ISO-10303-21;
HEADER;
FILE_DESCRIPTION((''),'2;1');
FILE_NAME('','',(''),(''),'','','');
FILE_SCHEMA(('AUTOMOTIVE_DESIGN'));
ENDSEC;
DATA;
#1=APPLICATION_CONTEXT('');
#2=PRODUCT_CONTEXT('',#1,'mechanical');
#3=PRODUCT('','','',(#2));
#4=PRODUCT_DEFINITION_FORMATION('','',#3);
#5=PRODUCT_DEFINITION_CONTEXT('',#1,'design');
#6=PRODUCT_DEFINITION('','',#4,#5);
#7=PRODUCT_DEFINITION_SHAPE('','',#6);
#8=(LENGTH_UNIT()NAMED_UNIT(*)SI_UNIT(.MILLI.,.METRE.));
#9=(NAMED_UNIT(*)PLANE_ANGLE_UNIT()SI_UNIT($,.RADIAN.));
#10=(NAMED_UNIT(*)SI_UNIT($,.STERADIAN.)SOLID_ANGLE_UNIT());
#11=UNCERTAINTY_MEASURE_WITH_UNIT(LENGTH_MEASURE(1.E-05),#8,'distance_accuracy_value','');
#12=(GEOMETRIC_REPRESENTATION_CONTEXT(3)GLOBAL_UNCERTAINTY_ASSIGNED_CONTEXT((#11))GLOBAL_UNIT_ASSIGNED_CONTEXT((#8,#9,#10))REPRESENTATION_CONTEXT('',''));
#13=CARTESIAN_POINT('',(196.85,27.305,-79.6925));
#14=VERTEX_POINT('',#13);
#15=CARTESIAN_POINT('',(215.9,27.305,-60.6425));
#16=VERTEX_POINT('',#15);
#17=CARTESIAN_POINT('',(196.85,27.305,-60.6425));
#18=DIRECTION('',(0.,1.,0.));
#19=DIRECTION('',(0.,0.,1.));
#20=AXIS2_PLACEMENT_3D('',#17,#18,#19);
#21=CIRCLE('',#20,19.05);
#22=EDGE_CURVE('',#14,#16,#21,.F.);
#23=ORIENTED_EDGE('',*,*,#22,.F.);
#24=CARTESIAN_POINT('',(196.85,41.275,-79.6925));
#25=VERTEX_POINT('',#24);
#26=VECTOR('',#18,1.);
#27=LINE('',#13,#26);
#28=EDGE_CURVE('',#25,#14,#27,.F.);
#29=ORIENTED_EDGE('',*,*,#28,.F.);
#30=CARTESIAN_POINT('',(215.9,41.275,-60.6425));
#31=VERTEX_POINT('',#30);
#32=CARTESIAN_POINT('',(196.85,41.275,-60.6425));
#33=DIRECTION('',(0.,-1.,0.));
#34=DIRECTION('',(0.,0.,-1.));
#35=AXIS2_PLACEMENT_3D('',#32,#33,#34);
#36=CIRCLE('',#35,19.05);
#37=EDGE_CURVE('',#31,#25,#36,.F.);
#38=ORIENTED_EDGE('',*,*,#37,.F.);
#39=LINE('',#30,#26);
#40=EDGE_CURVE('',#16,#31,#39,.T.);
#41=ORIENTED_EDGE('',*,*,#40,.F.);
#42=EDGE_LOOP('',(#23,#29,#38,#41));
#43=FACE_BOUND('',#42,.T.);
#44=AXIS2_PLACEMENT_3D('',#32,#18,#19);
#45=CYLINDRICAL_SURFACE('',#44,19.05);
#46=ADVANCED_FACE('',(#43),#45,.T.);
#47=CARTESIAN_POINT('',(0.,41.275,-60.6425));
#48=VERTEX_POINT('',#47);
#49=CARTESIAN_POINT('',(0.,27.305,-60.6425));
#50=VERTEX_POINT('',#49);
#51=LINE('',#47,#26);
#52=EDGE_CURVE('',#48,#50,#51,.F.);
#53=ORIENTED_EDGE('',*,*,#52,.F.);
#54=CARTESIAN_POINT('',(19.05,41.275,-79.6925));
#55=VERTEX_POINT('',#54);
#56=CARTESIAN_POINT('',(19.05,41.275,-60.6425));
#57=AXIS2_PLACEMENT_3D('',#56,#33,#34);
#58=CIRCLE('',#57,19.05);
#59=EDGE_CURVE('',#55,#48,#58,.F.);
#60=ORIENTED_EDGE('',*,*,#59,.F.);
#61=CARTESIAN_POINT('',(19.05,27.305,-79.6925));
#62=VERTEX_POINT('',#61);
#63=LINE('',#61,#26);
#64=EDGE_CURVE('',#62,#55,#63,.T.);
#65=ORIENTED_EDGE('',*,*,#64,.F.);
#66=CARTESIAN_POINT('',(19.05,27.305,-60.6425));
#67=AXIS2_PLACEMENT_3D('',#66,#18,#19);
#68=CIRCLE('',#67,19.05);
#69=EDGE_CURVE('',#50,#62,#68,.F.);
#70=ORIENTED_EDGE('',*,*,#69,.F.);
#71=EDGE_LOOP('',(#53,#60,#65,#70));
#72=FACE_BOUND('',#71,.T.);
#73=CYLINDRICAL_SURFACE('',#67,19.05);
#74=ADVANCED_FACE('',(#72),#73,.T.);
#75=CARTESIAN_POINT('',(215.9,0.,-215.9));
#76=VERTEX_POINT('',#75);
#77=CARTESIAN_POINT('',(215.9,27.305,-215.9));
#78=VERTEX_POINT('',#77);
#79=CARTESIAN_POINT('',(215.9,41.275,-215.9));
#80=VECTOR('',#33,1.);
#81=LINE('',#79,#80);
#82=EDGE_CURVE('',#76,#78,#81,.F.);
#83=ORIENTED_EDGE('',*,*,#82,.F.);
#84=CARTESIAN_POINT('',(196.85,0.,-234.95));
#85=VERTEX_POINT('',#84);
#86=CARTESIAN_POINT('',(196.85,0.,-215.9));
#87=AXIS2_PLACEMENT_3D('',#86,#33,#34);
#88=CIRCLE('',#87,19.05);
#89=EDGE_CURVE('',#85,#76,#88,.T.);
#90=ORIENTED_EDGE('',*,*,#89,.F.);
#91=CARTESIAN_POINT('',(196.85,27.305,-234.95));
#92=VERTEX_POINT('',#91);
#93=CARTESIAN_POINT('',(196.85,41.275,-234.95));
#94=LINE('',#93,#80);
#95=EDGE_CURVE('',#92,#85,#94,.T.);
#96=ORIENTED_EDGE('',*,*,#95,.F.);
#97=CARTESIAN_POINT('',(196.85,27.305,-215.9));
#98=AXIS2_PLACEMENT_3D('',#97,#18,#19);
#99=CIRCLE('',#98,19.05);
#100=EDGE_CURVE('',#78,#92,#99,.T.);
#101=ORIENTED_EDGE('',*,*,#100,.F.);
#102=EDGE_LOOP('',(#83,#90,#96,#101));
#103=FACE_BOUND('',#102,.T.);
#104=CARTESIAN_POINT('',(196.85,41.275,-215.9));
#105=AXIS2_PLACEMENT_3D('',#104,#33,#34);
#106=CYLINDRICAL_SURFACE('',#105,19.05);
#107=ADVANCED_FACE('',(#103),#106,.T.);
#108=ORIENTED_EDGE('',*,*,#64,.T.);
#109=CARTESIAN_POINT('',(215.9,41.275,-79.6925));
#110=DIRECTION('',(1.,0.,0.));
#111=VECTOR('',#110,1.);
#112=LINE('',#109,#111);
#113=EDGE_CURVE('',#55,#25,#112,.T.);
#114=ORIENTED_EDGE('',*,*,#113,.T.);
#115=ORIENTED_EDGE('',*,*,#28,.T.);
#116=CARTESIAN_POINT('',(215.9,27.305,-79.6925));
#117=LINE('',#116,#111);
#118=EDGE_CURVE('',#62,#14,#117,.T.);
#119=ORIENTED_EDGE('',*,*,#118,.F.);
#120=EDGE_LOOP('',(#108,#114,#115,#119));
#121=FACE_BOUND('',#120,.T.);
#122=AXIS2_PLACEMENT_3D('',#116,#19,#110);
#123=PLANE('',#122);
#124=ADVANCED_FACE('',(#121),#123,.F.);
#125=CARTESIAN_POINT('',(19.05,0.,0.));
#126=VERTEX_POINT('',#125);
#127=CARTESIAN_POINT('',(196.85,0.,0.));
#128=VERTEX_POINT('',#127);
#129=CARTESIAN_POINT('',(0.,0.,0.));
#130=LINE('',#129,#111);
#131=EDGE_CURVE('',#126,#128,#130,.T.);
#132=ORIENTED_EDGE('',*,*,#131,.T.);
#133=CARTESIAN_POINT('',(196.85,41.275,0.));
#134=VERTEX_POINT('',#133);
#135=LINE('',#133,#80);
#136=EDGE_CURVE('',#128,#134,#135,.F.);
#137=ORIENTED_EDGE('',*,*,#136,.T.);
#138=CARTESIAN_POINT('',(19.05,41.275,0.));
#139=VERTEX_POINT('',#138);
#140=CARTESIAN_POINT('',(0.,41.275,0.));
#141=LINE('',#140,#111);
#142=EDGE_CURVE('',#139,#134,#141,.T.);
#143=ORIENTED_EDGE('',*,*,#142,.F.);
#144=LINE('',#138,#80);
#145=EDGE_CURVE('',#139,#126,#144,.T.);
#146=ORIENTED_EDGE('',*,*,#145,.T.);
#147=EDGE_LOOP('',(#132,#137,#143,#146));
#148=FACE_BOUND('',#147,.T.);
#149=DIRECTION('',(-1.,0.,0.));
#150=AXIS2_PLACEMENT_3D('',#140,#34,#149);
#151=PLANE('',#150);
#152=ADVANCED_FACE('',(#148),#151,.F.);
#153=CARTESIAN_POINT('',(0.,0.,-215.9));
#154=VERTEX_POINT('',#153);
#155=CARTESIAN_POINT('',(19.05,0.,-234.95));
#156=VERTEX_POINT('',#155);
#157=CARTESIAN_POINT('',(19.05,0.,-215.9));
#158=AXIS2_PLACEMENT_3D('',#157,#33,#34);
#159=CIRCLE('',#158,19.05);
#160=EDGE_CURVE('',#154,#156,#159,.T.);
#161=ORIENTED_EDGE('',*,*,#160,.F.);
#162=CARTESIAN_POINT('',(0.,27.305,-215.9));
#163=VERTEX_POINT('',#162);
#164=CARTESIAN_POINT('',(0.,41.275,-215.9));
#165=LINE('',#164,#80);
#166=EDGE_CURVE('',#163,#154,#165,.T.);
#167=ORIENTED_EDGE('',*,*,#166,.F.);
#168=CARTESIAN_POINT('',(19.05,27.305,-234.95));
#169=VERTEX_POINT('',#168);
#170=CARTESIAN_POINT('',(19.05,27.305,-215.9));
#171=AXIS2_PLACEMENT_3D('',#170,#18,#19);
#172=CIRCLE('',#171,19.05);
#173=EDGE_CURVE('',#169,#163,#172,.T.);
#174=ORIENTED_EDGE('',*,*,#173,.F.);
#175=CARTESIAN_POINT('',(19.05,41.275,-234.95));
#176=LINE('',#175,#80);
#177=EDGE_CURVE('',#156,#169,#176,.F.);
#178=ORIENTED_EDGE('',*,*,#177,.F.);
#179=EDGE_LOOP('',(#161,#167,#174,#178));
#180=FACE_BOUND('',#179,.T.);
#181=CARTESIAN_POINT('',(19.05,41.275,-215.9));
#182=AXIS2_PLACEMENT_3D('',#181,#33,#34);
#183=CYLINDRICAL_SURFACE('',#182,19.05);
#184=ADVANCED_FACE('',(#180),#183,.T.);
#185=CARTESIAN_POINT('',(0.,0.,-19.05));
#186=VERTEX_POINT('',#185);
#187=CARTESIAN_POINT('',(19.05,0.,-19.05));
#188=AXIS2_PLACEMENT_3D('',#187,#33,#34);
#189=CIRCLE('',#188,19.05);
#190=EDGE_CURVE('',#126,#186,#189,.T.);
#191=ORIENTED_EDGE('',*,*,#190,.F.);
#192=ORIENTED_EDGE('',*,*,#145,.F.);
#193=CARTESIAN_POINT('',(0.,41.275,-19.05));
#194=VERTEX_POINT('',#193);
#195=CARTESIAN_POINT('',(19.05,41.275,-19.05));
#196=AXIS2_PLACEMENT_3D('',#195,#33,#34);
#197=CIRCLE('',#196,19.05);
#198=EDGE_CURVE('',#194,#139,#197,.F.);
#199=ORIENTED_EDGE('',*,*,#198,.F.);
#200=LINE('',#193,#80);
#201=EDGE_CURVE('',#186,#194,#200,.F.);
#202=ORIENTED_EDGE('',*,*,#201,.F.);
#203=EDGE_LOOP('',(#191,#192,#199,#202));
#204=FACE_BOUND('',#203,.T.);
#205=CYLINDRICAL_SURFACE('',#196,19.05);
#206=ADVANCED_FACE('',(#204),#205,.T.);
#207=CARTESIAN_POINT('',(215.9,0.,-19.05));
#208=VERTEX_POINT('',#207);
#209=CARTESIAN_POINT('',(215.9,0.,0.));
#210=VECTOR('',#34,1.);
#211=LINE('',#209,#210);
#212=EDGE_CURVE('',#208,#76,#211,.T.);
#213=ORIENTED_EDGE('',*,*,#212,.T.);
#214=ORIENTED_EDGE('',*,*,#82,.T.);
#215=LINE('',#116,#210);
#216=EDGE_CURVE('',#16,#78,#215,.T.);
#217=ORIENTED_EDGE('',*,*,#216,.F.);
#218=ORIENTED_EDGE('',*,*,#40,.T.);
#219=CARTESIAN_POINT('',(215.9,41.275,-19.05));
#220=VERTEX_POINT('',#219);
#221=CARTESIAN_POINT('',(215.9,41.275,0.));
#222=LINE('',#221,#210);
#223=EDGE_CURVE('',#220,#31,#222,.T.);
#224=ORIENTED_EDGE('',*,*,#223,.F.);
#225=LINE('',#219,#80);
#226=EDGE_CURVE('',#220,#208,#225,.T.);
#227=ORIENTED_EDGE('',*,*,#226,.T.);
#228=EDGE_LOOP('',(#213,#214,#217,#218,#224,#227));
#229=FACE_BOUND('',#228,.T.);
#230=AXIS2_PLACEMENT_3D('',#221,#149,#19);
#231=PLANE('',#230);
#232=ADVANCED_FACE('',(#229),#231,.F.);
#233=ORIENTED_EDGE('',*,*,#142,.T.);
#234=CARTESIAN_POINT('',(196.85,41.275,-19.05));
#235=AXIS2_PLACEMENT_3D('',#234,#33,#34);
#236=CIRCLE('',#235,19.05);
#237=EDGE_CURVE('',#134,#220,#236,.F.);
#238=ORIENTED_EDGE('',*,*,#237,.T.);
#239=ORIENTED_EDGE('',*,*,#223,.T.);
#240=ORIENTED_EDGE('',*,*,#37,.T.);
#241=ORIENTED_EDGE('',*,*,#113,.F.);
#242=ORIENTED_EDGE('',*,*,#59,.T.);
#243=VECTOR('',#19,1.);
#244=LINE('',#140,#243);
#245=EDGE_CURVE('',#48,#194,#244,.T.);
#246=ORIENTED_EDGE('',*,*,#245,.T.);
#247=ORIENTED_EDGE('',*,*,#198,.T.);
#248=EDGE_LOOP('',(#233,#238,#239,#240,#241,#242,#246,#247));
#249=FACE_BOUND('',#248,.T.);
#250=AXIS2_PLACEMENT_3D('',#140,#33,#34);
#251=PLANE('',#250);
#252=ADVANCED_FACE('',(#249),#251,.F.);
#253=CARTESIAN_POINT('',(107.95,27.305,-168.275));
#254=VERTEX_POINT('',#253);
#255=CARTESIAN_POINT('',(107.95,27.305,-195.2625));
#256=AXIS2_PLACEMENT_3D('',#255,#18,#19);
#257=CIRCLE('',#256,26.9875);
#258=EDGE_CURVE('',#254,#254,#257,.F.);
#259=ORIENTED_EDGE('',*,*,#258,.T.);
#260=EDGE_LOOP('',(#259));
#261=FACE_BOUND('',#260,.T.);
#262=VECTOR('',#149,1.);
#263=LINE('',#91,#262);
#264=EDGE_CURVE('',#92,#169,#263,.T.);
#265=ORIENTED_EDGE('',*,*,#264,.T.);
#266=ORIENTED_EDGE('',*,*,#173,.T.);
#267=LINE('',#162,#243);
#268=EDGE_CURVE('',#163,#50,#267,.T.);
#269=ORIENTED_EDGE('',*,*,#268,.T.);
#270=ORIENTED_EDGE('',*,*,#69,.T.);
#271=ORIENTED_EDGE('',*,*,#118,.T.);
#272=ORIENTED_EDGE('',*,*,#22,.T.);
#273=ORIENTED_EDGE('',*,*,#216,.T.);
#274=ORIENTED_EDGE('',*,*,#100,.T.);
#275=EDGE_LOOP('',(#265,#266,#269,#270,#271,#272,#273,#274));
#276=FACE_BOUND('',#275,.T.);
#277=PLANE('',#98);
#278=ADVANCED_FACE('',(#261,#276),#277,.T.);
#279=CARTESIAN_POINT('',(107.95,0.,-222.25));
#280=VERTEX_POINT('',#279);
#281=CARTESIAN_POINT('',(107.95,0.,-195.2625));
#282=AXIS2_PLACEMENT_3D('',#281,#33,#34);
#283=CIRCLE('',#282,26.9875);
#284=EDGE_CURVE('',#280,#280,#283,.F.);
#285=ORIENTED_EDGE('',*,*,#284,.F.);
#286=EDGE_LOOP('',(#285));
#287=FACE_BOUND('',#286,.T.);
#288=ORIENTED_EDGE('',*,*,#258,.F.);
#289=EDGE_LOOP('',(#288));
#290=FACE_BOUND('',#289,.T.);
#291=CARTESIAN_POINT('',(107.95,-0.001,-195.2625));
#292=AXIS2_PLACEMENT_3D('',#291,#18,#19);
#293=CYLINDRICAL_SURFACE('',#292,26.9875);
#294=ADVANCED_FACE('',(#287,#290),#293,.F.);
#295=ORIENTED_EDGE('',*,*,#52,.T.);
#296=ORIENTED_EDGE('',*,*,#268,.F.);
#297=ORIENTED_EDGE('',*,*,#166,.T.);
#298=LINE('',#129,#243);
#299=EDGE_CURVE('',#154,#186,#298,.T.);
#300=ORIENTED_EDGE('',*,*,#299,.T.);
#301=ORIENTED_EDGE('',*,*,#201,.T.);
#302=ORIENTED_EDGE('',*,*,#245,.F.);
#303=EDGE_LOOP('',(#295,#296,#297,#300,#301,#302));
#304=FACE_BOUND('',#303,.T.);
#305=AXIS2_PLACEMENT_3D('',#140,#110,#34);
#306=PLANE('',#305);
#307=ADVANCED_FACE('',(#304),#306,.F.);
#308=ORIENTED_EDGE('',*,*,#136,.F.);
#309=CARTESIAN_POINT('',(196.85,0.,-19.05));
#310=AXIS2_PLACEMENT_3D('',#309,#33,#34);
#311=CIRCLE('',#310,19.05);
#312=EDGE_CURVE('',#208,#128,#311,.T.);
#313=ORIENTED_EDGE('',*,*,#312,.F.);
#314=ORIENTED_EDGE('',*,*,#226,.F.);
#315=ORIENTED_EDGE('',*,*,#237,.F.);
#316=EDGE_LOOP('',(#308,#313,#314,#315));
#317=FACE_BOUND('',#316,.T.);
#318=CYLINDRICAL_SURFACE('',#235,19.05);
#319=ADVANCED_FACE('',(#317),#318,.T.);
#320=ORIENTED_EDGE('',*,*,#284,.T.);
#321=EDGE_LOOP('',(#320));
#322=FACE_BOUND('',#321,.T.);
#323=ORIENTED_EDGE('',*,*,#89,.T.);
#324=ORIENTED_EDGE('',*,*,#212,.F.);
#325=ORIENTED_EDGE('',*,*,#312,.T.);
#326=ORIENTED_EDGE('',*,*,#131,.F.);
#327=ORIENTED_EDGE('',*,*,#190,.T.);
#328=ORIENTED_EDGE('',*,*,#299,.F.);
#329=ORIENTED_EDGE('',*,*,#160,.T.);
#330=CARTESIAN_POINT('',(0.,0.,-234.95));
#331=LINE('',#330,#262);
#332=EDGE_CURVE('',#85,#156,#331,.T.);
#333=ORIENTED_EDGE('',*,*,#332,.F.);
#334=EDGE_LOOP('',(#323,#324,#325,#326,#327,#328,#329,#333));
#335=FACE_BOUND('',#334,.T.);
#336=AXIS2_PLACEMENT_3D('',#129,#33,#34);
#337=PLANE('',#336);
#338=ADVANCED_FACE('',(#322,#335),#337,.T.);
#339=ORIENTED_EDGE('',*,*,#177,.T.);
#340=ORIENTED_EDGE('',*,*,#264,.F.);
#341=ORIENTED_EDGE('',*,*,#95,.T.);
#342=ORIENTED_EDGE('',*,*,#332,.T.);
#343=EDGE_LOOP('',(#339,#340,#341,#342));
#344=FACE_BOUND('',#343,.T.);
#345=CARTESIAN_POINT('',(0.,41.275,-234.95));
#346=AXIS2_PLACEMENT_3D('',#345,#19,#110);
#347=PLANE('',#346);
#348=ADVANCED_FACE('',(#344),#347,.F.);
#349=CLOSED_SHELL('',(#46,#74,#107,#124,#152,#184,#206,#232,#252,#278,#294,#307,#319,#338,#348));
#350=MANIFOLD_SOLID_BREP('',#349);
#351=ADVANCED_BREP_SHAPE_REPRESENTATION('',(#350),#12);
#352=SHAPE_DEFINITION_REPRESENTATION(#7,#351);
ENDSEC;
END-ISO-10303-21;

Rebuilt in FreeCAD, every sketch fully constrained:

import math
import FreeCAD as App
import Part
import Sketcher

V = App.Vector
Q = App.Units.Quantity


def edges_at(feature, points):
    """Names of the edges that pass closest to the given points."""
    edges = feature.Shape.Edges
    near = lambda p: min(range(len(edges)), key=lambda i: edges[i].distToShape(Part.Vertex(*p))[0])
    return sorted({f"Edge{near(p) + 1}" for p in points})

doc = App.newDocument("Part")
params = doc.addObject("Spreadsheet::Sheet", "Params")
for row, (alias, value) in enumerate([
    ("sketch1_width", "8.5 in"),
    ("sketch1_height", "9.25 in"),
    ("pad1_length", "1.625 in"),
    ("fillet_radius", "0.75 in"),
    ("sketch2_diameter", "2.125 in"),
    ("sketch3_width", "7 in"),
    ("sketch3_radius", "0.75 in"),
    ("pocket2_length", "0.55 in"),
    ("fillet2_radius", "0.75 in"),
], start=1):
    params.set(f"A{row}", alias)
    params.set(f"B{row}", "=" + value)
    params.setAlias(f"B{row}", alias)

body = doc.addObject("PartDesign::Body", "Body")

sketch1 = doc.addObject("Sketcher::SketchObject", "Sketch")
body.addObject(sketch1)
sketch1.AttachmentSupport = (doc.XZ_Plane, [""])
sketch1.MapMode = "FlatFace"
sketch1.addGeometry(Part.LineSegment(V(0, -235, 0), V(0, 0, 0)), False)
sketch1.addGeometry(Part.LineSegment(V(0, 0, 0), V(216, 0, 0)), False)
sketch1.addGeometry(Part.LineSegment(V(216, 0, 0), V(216, -235, 0)), False)
sketch1.addGeometry(Part.LineSegment(V(216, -235, 0), V(0, -235, 0)), False)
sketch1.addConstraint(Sketcher.Constraint("Coincident", 0, 2, 1, 1))
sketch1.addConstraint(Sketcher.Constraint("Coincident", 1, 2, 2, 1))
sketch1.addConstraint(Sketcher.Constraint("Coincident", 2, 2, 3, 1))
sketch1.addConstraint(Sketcher.Constraint("Coincident", 3, 2, 0, 1))
sketch1.addConstraint(Sketcher.Constraint("Vertical", 0))
sketch1.addConstraint(Sketcher.Constraint("Horizontal", 1))
sketch1.addConstraint(Sketcher.Constraint("Vertical", 2))
sketch1.addConstraint(Sketcher.Constraint("Horizontal", 3))
sketch1.addConstraint(Sketcher.Constraint("Coincident", 0, 2, -1, 1))
sketch1.addConstraint(Sketcher.Constraint("DistanceX", 1, 1, 1, 2, Q("8.5 in")))
sketch1.addConstraint(Sketcher.Constraint("DistanceY", 0, 1, 0, 2, Q("9.25 in")))
sketch1.setExpression("Constraints[9]", "Params.sketch1_width")
sketch1.setExpression("Constraints[10]", "Params.sketch1_height")
pad1 = doc.addObject("PartDesign::Pad", "Pad")
body.addObject(pad1)
pad1.Profile = sketch1
pad1.setExpression("Length", "Params.pad1_length")
pad1.Reversed = True
doc.recompute()

fillet = doc.addObject("PartDesign::Fillet", "Fillet")
body.addObject(fillet)
fillet.Base = (pad1, edges_at(pad1, [
    (0, 20.637, -234.95),
    (215.9, 20.637, -234.95),
    (215.9, 20.637, 0),
    (0, 20.637, 0),
]))
fillet.setExpression("Radius", "Params.fillet_radius")

sketch2 = doc.addObject("Sketcher::SketchObject", "Sketch001")
body.addObject(sketch2)
sketch2.AttachmentSupport = (doc.XZ_Plane, [""])
sketch2.MapMode = "FlatFace"
sketch2.AttachmentOffset = App.Placement(V(0, 0, -1.625 * 25.4), App.Rotation())
sketch2.addGeometry(Part.Circle(V(108, -195, 0), V(0, 0, 1), 27), False)
sketch2.addConstraint(Sketcher.Constraint("Diameter", 0, Q("2.125 in")))
sketch2.addConstraint(Sketcher.Constraint("DistanceX", -1, 1, 0, 3, Q("4.25 in")))
sketch2.addConstraint(Sketcher.Constraint("DistanceY", 0, 3, -1, 1, Q("7.6875 in")))
sketch2.setExpression("Constraints[0]", "Params.sketch2_diameter")
pocket1 = doc.addObject("PartDesign::Pocket", "Pocket")
body.addObject(pocket1)
pocket1.Profile = sketch2
pocket1.Type = "UpToFirst"
pocket1.Reversed = True

sketch3 = doc.addObject("Sketcher::SketchObject", "Sketch002")
body.addObject(sketch3)
sketch3.AttachmentSupport = (doc.XZ_Plane, [""])
sketch3.MapMode = "FlatFace"
sketch3.AttachmentOffset = App.Placement(V(0, 0, -1.625 * 25.4), App.Rotation())
sketch3.addGeometry(Part.LineSegment(V(0, -80, 0), V(216, -80, 0)), False)
sketch3.addGeometry(Part.LineSegment(V(216, -80, 0), V(216, -216, 0)), False)
sketch3.addGeometry(Part.ArcOfCircle(Part.Circle(V(197, -216, 0), V(0, 0, 1), 19), math.radians(-90), math.radians(0)), False)
sketch3.addGeometry(Part.LineSegment(V(197, -235, 0), V(19, -235, 0)), False)
sketch3.addGeometry(Part.ArcOfCircle(Part.Circle(V(19, -216, 0), V(0, 0, 1), 19), math.radians(180), math.radians(270)), False)
sketch3.addGeometry(Part.LineSegment(V(0, -216, 0), V(0, -80, 0)), False)
sketch3.addConstraint(Sketcher.Constraint("Coincident", 0, 2, 1, 1))
sketch3.addConstraint(Sketcher.Constraint("Tangent", 1, 2, 2, 2))
sketch3.addConstraint(Sketcher.Constraint("Tangent", 2, 1, 3, 1))
sketch3.addConstraint(Sketcher.Constraint("Tangent", 3, 2, 4, 2))
sketch3.addConstraint(Sketcher.Constraint("Tangent", 4, 1, 5, 1))
sketch3.addConstraint(Sketcher.Constraint("Coincident", 5, 2, 0, 1))
sketch3.addConstraint(Sketcher.Constraint("Horizontal", 0))
sketch3.addConstraint(Sketcher.Constraint("Vertical", 1))
sketch3.addConstraint(Sketcher.Constraint("Horizontal", 3))
sketch3.addConstraint(Sketcher.Constraint("Vertical", 5))
sketch3.addConstraint(Sketcher.Constraint("Equal", 2, 4))
sketch3.addConstraint(Sketcher.Constraint("PointOnObject", 4, 1, -2))
sketch3.addConstraint(Sketcher.Constraint("DistanceX", 3, 2, 3, 1, Q("7 in")))
sketch3.addConstraint(Sketcher.Constraint("Radius", 2, Q("0.75 in")))
sketch3.addConstraint(Sketcher.Constraint("DistanceY", 2, 3, -1, 1, Q("8.5 in")))
sketch3.addConstraint(Sketcher.Constraint("DistanceY", 1, 2, 1, 1, Q("5.3625 in")))
sketch3.setExpression("Constraints[12]", "Params.sketch3_width")
sketch3.setExpression("Constraints[13]", "Params.sketch3_radius")
pocket2 = doc.addObject("PartDesign::Pocket", "Pocket001")
body.addObject(pocket2)
pocket2.Profile = sketch3
pocket2.setExpression("Length", "Params.pocket2_length")
pocket2.Reversed = True
doc.recompute()

fillet2 = doc.addObject("PartDesign::Fillet", "Fillet001")
body.addObject(fillet2)
fillet2.Base = (pocket2, edges_at(pocket2, [(215.9, 34.29, -79.692), (0, 34.29, -79.692)]))
fillet2.setExpression("Radius", "Params.fillet2_radius")

doc.recompute()
